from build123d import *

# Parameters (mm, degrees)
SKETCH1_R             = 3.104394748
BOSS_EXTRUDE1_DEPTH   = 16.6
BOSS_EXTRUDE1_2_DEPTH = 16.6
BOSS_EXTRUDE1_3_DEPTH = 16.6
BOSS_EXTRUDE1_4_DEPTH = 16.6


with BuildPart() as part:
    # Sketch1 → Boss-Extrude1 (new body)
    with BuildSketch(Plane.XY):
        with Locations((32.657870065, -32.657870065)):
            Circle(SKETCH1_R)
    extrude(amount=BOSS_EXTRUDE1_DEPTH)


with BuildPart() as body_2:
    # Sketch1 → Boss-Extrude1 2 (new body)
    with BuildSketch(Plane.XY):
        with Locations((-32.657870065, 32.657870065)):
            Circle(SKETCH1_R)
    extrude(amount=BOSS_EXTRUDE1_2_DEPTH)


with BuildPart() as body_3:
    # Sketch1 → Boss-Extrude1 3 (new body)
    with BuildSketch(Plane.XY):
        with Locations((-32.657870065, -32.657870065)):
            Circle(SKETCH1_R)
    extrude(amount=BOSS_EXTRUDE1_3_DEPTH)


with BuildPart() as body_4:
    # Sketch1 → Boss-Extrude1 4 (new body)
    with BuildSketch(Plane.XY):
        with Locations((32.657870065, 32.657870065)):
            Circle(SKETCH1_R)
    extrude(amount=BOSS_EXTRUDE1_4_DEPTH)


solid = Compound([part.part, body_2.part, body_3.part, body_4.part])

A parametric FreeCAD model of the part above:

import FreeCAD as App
import Part
import Sketcher
from FreeCAD import Vector

doc = App.newDocument("Part")
params = doc.addObject("Spreadsheet::Sheet", "Params")
for row, (alias, value) in enumerate([
    ("pad1_length", "16.6 mm"),
    ("pad2_length", "16.6 mm"),
    ("pad3_length", "16.6 mm"),
    ("pad4_length", "16.6 mm"),
], start=1):
    params.set(f"A{row}", alias)
    params.set(f"B{row}", "=" + value)
    params.setAlias(f"B{row}", alias)

body = doc.addObject("PartDesign::Body", "Body")

sketch1 = body.newObject("Sketcher::SketchObject", "Sketch")
sketch1.AttachmentSupport = (doc.getObject("XY_Plane"), [""])
sketch1.MapMode = "FlatFace"
sketch1.addGeometry(Part.Circle(Vector(32.7, -32.7, 0), Vector(0, 0, 1), 3.1), False)
sketch1.addConstraint([
    Sketcher.Constraint("Diameter", 0, 6.208789),
    Sketcher.Constraint("DistanceX", -1, 1, 0, 3, 32.65787),
    Sketcher.Constraint("DistanceY", 0, 3, -1, 1, 32.65787),
])
pad1 = body.newObject("PartDesign::Pad", "Pad")
pad1.Profile = sketch1
pad1.setExpression("Length", "Params.pad1_length")
body2 = doc.addObject("PartDesign::Body", "Body001")

sketch2 = body2.newObject("Sketcher::SketchObject", "Sketch001")
sketch2.AttachmentSupport = (doc.getObject("XY_Plane001"), [""])
sketch2.MapMode = "FlatFace"
sketch2.addGeometry(Part.Circle(Vector(-32.7, 32.7, 0), Vector(0, 0, 1), 3.1), False)
sketch2.addConstraint([
    Sketcher.Constraint("Diameter", 0, 6.208789),
    Sketcher.Constraint("DistanceX", 0, 3, -1, 1, 32.65787),
    Sketcher.Constraint("DistanceY", -1, 1, 0, 3, 32.65787),
])
pad2 = body2.newObject("PartDesign::Pad", "Pad001")
pad2.Profile = sketch2
pad2.setExpression("Length", "Params.pad2_length")
body3 = doc.addObject("PartDesign::Body", "Body002")

sketch3 = body3.newObject("Sketcher::SketchObject", "Sketch002")
sketch3.AttachmentSupport = (doc.getObject("XY_Plane002"), [""])
sketch3.MapMode = "FlatFace"
sketch3.addGeometry(Part.Circle(Vector(-32.7, -32.7, 0), Vector(0, 0, 1), 3.1), False)
sketch3.addConstraint([
    Sketcher.Constraint("Diameter", 0, 6.208789),
    Sketcher.Constraint("DistanceX", 0, 3, -1, 1, 32.65787),
    Sketcher.Constraint("DistanceY", 0, 3, -1, 1, 32.65787),
])
pad3 = body3.newObject("PartDesign::Pad", "Pad002")
pad3.Profile = sketch3
pad3.setExpression("Length", "Params.pad3_length")
body4 = doc.addObject("PartDesign::Body", "Body003")

sketch4 = body4.newObject("Sketcher::SketchObject", "Sketch003")
sketch4.AttachmentSupport = (doc.getObject("XY_Plane003"), [""])
sketch4.MapMode = "FlatFace"
sketch4.addGeometry(Part.Circle(Vector(32.7, 32.7, 0), Vector(0, 0, 1), 3.1), False)
sketch4.addConstraint([
    Sketcher.Constraint("Diameter", 0, 6.208789),
    Sketcher.Constraint("DistanceX", -1, 1, 0, 3, 32.65787),
    Sketcher.Constraint("DistanceY", -1, 1, 0, 3, 32.65787),
])
pad4 = body4.newObject("PartDesign::Pad", "Pad003")
pad4.Profile = sketch4
pad4.setExpression("Length", "Params.pad4_length")

doc.recompute()
